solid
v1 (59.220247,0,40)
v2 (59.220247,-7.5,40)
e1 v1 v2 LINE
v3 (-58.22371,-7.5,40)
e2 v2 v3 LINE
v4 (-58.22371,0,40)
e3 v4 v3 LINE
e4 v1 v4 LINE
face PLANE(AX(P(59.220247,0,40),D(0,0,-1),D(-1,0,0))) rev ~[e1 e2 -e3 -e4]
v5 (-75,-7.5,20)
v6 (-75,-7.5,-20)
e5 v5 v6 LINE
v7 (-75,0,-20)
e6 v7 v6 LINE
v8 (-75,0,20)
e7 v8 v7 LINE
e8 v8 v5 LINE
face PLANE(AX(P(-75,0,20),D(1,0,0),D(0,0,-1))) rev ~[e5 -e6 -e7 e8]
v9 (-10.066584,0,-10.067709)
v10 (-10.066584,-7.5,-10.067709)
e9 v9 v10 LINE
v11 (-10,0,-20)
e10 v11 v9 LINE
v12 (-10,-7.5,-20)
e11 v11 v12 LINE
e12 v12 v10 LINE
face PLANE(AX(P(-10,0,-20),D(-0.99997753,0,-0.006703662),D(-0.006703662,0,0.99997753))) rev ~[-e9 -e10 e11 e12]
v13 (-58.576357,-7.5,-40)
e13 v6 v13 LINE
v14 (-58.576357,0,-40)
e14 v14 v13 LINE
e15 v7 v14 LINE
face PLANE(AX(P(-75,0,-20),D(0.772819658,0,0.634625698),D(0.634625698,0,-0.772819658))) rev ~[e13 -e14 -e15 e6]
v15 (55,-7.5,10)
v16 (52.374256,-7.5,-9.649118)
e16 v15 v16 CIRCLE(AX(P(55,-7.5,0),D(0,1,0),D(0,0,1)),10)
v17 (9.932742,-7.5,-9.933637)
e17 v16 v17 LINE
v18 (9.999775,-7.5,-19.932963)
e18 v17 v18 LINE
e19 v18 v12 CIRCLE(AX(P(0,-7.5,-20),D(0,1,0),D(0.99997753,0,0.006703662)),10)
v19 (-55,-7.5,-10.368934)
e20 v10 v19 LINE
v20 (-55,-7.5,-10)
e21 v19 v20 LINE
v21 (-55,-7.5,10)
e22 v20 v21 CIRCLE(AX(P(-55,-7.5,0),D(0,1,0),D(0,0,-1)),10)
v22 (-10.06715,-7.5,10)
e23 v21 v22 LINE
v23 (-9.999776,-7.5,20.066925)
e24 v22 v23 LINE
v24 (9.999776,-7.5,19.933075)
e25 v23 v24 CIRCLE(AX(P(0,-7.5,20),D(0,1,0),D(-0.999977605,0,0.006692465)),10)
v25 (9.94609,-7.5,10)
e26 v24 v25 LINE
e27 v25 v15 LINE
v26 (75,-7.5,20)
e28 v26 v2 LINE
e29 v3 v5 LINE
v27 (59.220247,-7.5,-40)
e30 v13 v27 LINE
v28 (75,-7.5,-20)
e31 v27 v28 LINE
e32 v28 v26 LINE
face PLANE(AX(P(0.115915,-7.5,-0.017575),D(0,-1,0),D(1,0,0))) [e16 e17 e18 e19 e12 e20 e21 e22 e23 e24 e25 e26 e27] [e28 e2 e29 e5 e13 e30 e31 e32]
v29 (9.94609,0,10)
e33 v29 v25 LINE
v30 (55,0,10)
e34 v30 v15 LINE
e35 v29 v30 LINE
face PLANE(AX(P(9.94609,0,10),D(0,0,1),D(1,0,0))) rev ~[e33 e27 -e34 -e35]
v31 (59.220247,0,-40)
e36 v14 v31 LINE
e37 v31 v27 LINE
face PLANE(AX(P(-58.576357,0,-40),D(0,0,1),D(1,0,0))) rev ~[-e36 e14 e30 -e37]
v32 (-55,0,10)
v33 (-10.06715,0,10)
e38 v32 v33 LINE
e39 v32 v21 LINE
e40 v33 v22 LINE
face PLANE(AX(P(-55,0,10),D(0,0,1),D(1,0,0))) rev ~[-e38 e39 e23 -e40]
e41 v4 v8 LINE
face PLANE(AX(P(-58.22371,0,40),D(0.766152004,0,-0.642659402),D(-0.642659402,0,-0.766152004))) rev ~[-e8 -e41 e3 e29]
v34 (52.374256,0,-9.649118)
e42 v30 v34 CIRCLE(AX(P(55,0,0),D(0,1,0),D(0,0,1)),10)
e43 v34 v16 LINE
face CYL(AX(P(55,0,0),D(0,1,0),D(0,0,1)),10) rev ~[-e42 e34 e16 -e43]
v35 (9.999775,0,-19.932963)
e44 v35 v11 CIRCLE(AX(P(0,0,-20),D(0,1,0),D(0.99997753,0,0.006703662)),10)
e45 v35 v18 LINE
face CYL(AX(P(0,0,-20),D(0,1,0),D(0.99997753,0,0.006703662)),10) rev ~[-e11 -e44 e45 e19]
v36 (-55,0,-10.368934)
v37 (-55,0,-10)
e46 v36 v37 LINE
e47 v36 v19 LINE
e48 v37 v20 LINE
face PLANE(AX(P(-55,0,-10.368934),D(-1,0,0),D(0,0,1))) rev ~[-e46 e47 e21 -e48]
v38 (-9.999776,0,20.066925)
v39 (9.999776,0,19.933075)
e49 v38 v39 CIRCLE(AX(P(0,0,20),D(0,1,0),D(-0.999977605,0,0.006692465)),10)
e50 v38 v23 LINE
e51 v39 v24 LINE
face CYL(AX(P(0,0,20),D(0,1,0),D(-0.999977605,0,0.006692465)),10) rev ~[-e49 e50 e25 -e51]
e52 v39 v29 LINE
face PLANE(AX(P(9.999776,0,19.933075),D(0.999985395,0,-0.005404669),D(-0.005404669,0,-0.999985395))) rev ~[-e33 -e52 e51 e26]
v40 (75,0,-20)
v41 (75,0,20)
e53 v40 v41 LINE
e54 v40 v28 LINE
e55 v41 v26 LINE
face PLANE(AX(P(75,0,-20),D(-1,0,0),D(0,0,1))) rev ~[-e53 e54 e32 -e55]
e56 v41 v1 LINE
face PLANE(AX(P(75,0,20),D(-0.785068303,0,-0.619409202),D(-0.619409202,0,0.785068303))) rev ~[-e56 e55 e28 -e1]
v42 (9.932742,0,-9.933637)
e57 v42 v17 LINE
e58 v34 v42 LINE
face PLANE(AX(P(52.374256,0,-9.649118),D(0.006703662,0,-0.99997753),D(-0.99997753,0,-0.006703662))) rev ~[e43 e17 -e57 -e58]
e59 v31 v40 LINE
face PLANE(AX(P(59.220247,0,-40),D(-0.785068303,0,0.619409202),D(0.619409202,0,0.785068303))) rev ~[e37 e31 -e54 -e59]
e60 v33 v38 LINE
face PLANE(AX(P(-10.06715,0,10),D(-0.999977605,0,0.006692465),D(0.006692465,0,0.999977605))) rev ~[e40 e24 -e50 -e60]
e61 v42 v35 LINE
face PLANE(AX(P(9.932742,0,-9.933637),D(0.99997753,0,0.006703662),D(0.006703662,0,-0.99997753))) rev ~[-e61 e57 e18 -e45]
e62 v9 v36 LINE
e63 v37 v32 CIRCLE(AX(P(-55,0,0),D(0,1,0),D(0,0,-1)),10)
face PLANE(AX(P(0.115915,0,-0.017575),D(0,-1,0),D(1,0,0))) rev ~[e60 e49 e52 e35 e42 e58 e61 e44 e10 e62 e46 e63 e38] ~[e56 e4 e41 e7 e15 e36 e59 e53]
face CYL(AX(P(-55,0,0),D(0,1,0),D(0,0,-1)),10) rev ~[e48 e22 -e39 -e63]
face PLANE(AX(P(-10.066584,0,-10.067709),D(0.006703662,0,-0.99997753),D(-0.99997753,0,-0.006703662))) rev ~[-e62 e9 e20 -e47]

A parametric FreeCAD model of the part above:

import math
import FreeCAD as App
import Part
import Sketcher

V = App.Vector


def add_polygon(sketch, points):
    """Adds a closed chain of lines whose ends are joined by coincident constraints."""
    first, n = sketch.GeometryCount, len(points)
    for a, b in zip(points, points[1:] + points[:1]):
        sketch.addGeometry(Part.LineSegment(App.Vector(*a, 0), App.Vector(*b, 0)), False)
    for i in range(n):
        sketch.addConstraint(Sketcher.Constraint("Coincident", first + i, 2, first + (i + 1) % n, 1))

doc = App.newDocument("Part")
body = doc.addObject("PartDesign::Body", "Body")

sketch1 = body.newObject("Sketcher::SketchObject", "Sketch")
sketch1.AttachmentSupport = (doc.getObject("XZ_Plane"), [""])
sketch1.MapMode = "FlatFace"
add_polygon(sketch1, [(75, 20), (59.220247, 40), (-58.22371, 40), (-75, 20), (-75, -20), (-58.576357, -40), (59.220247, -40), (75, -20)])
sketch1.addGeometry(Part.LineSegment(V(-10, -20, 0), V(-10.066584, -10.067709, 0)), False)
sketch1.addGeometry(Part.LineSegment(V(-10.066584, -10.067709, 0), V(-55, -10.368934, 0)), False)
sketch1.addGeometry(Part.LineSegment(V(-55, -10.368934, 0), V(-55, -10, 0)), False)
sketch1.addGeometry(Part.ArcOfCircle(Part.Circle(V(-55, 0, 0), V(0, 0, 1), 10), math.radians(90), math.radians(270)), False)
sketch1.addGeometry(Part.LineSegment(V(-55, 10, 0), V(-10.06715, 10, 0)), False)
sketch1.addGeometry(Part.LineSegment(V(-10.06715, 10, 0), V(-9.999776, 20.066925, 0)), False)
sketch1.addGeometry(Part.ArcOfCircle(Part.Circle(V(0, 20, 0), V(0, 0, 1), 10), math.radians(-0.383453), math.radians(179.616547)), False)
sketch1.addGeometry(Part.LineSegment(V(9.999776, 19.933075, 0), V(9.94609, 10, 0)), False)
sketch1.addGeometry(Part.LineSegment(V(9.94609, 10, 0), V(55, 10, 0)), False)
sketch1.addGeometry(Part.ArcOfCircle(Part.Circle(V(55, 0, 0), V(0, 0, 1), 10), math.radians(-105.222872), math.radians(90)), False)
sketch1.addGeometry(Part.LineSegment(V(52.374256, -9.649118, 0), V(9.932742, -9.933637, 0)), False)
sketch1.addGeometry(Part.LineSegment(V(9.932742, -9.933637, 0), V(9.999775, -19.932963, 0)), False)
sketch1.addGeometry(Part.ArcOfCircle(Part.Circle(V(0, -20, 0), V(0, 0, 1), 10), math.radians(180), math.radians(360.384094)), False)
sketch1.addConstraint([
    Sketcher.Constraint("Coincident", 8, 2, 9, 1),
    Sketcher.Constraint("Coincident", 9, 2, 10, 1),
    Sketcher.Constraint("Coincident", 10, 2, 11, 2),
    Sketcher.Constraint("Coincident", 11, 1, 12, 1),
    Sketcher.Constraint("Coincident", 12, 2, 13, 1),
    Sketcher.Constraint("Coincident", 13, 2, 14, 2),
    Sketcher.Constraint("Coincident", 14, 1, 15, 1),
    Sketcher.Constraint("Coincident", 15, 2, 16, 1),
    Sketcher.Constraint("Coincident", 16, 2, 17, 2),
    Sketcher.Constraint("Coincident", 17, 1, 18, 1),
    Sketcher.Constraint("Coincident", 18, 2, 19, 1),
    Sketcher.Constraint("Coincident", 19, 2, 20, 2),
    Sketcher.Constraint("Coincident", 20, 1, 8, 1),
    Sketcher.Constraint("Horizontal", 1),
    Sketcher.Constraint("Vertical", 3),
    Sketcher.Constraint("Horizontal", 5),
    Sketcher.Constraint("Vertical", 7),
    Sketcher.Constraint("Vertical", 10),
    Sketcher.Constraint("Horizontal", 12),
    Sketcher.Constraint("Horizontal", 16),
    Sketcher.Constraint("PointOnObject", 11, 3, -1),
    Sketcher.Constraint("PointOnObject", 14, 3, -2),
    Sketcher.Constraint("PointOnObject", 17, 3, -1),
    Sketcher.Constraint("PointOnObject", 20, 3, -2),
    Sketcher.Constraint("Radius", 11, 10.0),
    Sketcher.Constraint("Radius", 14, 10.0),
    Sketcher.Constraint("Radius", 17, 10.0),
    Sketcher.Constraint("Radius", 20, 10.0),
    Sketcher.Constraint("DistanceY", 3, 2, 3, 1, 40.0),
    Sketcher.Constraint("DistanceY", 7, 1, 7, 2, 40.0),
    Sketcher.Constraint("DistanceX", 11, 3, -1, 1, 55.0),
    Sketcher.Constraint("DistanceY", -1, 1, 14, 3, 20.0),
    Sketcher.Constraint("DistanceX", -1, 1, 17, 3, 55.0),
    Sketcher.Constraint("DistanceY", 20, 3, -1, 1, 20.0),
    Sketcher.Constraint("DistanceY", -1, 1, 0, 2, 40.0),
    Sketcher.Constraint("DistanceX", 2, 2, -1, 1, 75.0),
    Sketcher.Constraint("DistanceY", -1, 1, 2, 2, 20.0),
    Sketcher.Constraint("DistanceY", 4, 2, -1, 1, 40.0),
    Sketcher.Constraint("DistanceX", -1, 1, 6, 2, 75.0),
    Sketcher.Constraint("DistanceY", 6, 2, -1, 1, 20.0),
    Sketcher.Constraint("DistanceX", 9, 2, -1, 1, 55.0),
    Sketcher.Constraint("DistanceX", 11, 1, -1, 1, 55.0),
    Sketcher.Constraint("DistanceX", -1, 1, 16, 2, 55.0),
    Sketcher.Constraint("DistanceY", 20, 1, -1, 1, 20.0),
    Sketcher.Constraint("DistanceX", 12, 1, 12, 2, 44.93285),
    Sketcher.Constraint("DistanceX", 16, 1, 16, 2, 45.05391),
    Sketcher.Constraint("Distance", 0, 25.47549),
    Sketcher.Constraint("Distance", 2, 26.10448),
    Sketcher.Constraint("Distance", 4, 25.879259),
    Sketcher.Constraint("Distance", 6, 25.47549),
    Sketcher.Constraint("Distance", 13, 10.06715),
    Sketcher.Constraint("Distance", 15, 9.93322),
    Sketcher.Constraint("Distance", 18, 42.442468),
    Sketcher.Constraint("Distance", 19, 9.999551),
    Sketcher.Constraint("DistanceY", 10, 1, 10, 2, 0.368934),
    Sketcher.Constraint("DistanceY", 8, 2, -1, 1, 10.067709),
    Sketcher.Constraint("DistanceX", -1, 1, 18, 2, 9.932742),
    Sketcher.Constraint("DistanceX", 8, 2, 13, 2, 0.066808),
    Sketcher.Constraint("DistanceY", 8, 2, 18, 2, 0.134072),
])
pad1 = body.newObject("PartDesign::Pad", "Pad")
pad1.Profile = sketch1
pad1.Length = 7.5

doc.recompute()
